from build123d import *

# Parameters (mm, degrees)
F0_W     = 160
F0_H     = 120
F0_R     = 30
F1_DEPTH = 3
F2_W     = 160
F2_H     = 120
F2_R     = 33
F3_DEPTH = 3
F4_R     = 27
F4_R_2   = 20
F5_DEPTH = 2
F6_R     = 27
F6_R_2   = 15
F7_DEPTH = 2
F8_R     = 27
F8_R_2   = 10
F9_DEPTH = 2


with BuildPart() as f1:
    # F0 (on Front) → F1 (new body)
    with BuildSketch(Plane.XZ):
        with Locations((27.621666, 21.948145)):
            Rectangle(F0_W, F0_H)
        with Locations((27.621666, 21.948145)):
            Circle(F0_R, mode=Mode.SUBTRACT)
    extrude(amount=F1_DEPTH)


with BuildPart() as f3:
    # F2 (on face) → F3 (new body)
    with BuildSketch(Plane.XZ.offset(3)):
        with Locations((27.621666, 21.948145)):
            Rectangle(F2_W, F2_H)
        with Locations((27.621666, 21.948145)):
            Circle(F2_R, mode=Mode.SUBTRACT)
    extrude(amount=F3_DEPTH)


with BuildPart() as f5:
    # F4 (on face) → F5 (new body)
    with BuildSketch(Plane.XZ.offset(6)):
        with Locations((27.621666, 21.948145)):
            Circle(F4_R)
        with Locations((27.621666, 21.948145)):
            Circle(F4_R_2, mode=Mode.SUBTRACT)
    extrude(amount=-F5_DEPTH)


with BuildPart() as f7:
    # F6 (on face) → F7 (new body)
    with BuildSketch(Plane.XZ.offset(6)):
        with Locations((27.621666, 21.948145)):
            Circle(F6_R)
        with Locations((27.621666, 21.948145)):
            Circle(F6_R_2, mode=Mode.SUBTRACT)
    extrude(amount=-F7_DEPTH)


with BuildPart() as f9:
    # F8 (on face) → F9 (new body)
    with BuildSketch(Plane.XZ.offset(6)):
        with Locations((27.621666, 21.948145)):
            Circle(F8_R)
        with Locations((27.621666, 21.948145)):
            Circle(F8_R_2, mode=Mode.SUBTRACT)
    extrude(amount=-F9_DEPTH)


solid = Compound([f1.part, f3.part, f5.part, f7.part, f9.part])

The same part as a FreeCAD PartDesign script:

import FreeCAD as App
import Part
import Sketcher
from FreeCAD import Vector

doc = App.newDocument("Part")
body = doc.addObject("PartDesign::Body", "Body")

sketch1 = doc.addObject("Sketcher::SketchObject", "Sketch")
body.addObject(sketch1)
sketch1.AttachmentSupport = (doc.XZ_Plane, [""])
sketch1.MapMode = "FlatFace"
sketch1.addGeometry([
    Part.LineSegment(Vector(-52.378334, 81.948145, 0), Vector(-52.378334, -38.051855, 0)),
    Part.LineSegment(Vector(-52.378334, -38.051855, 0), Vector(107.621666, -38.051855, 0)),
    Part.LineSegment(Vector(107.621666, -38.051855, 0), Vector(107.621666, 81.948145, 0)),
    Part.LineSegment(Vector(107.621666, 81.948145, 0), Vector(-52.378334, 81.948145, 0)),
    Part.Circle(Vector(27.621666, 21.948145, 0), Vector(0, 0, 1), 30),
], False)
sketch1.addConstraint([
    Sketcher.Constraint("Coincident", 0, 2, 1, 1),
    Sketcher.Constraint("Coincident", 1, 2, 2, 1),
    Sketcher.Constraint("Coincident", 2, 2, 3, 1),
    Sketcher.Constraint("Coincident", 3, 2, 0, 1),
    Sketcher.Constraint("Vertical", 0),
    Sketcher.Constraint("Horizontal", 1),
    Sketcher.Constraint("Vertical", 2),
    Sketcher.Constraint("Horizontal", 3),
    Sketcher.Constraint("Diameter", 4, 60.0),
    Sketcher.Constraint("DistanceX", 1, 1, 1, 2, 160.0),
    Sketcher.Constraint("DistanceY", 0, 2, 0, 1, 120.0),
    Sketcher.Constraint("DistanceX", 0, 2, 4, 3, 80.0),
    Sketcher.Constraint("DistanceY", 0, 2, 4, 3, 60.0),
    Sketcher.Constraint("DistanceX", -1, 1, 4, 3, 27.621666),
    Sketcher.Constraint("DistanceY", -1, 1, 4, 3, 21.948145),
])
pad1 = doc.addObject("PartDesign::Pad", "Pad")
body.addObject(pad1)
pad1.Profile = sketch1
pad1.Length = 3
body2 = doc.addObject("PartDesign::Body", "Body001")

sketch2 = doc.addObject("Sketcher::SketchObject", "Sketch001")
body2.addObject(sketch2)
sketch2.AttachmentSupport = (doc.getObject("XZ_Plane001"), [""])
sketch2.MapMode = "FlatFace"
sketch2.AttachmentOffset = App.Placement(Vector(0, 0, 3), App.Rotation())
sketch2.addGeometry([
    Part.LineSegment(Vector(-52.378334, 81.948145, 0), Vector(-52.378334, -38.051855, 0)),
    Part.LineSegment(Vector(-52.378334, -38.051855, 0), Vector(107.621666, -38.051855, 0)),
    Part.LineSegment(Vector(107.621666, -38.051855, 0), Vector(107.621666, 81.948145, 0)),
    Part.LineSegment(Vector(107.621666, 81.948145, 0), Vector(-52.378334, 81.948145, 0)),
    Part.Circle(Vector(27.621666, 21.948145, 0), Vector(0, 0, 1), 33),
], False)
sketch2.addConstraint([
    Sketcher.Constraint("Coincident", 0, 2, 1, 1),
    Sketcher.Constraint("Coincident", 1, 2, 2, 1),
    Sketcher.Constraint("Coincident", 2, 2, 3, 1),
    Sketcher.Constraint("Coincident", 3, 2, 0, 1),
    Sketcher.Constraint("Vertical", 0),
    Sketcher.Constraint("Horizontal", 1),
    Sketcher.Constraint("Vertical", 2),
    Sketcher.Constraint("Horizontal", 3),
    Sketcher.Constraint("Diameter", 4, 66.0),
    Sketcher.Constraint("DistanceX", 1, 1, 1, 2, 160.0),
    Sketcher.Constraint("DistanceY", 0, 2, 0, 1, 120.0),
    Sketcher.Constraint("DistanceX", 0, 2, 4, 3, 80.0),
    Sketcher.Constraint("DistanceY", 0, 2, 4, 3, 60.0),
    Sketcher.Constraint("DistanceX", -1, 1, 4, 3, 27.621666),
    Sketcher.Constraint("DistanceY", -1, 1, 4, 3, 21.948145),
])
pad2 = doc.addObject("PartDesign::Pad", "Pad001")
body2.addObject(pad2)
pad2.Profile = sketch2
pad2.Length = 3
body3 = doc.addObject("PartDesign::Body", "Body002")

sketch3 = doc.addObject("Sketcher::SketchObject", "Sketch002")
body3.addObject(sketch3)
sketch3.AttachmentSupport = (doc.getObject("XZ_Plane002"), [""])
sketch3.MapMode = "FlatFace"
sketch3.AttachmentOffset = App.Placement(Vector(0, 0, 6), App.Rotation())
sketch3.addGeometry([
    Part.Circle(Vector(27.621666, 21.948145, 0), Vector(0, 0, 1), 27),
    Part.Circle(Vector(27.621666, 21.948145, 0), Vector(0, 0, 1), 20),
], False)
sketch3.addConstraint([
    Sketcher.Constraint("Coincident", 1, 3, 0, 3),
    Sketcher.Constraint("Diameter", 0, 54.0),
    Sketcher.Constraint("Diameter", 1, 40.0),
    Sketcher.Constraint("DistanceX", -1, 1, 0, 3, 27.621666),
    Sketcher.Constraint("DistanceY", -1, 1, 0, 3, 21.948145),
])
pad3 = doc.addObject("PartDesign::Pad", "Pad002")
body3.addObject(pad3)
pad3.Profile = sketch3
pad3.Length = 2
pad3.Reversed = True
body4 = doc.addObject("PartDesign::Body", "Body003")

sketch4 = doc.addObject("Sketcher::SketchObject", "Sketch003")
body4.addObject(sketch4)
sketch4.AttachmentSupport = (doc.getObject("XZ_Plane003"), [""])
sketch4.MapMode = "FlatFace"
sketch4.AttachmentOffset = App.Placement(Vector(0, 0, 6), App.Rotation())
sketch4.addGeometry([
    Part.Circle(Vector(27.621666, 21.948145, 0), Vector(0, 0, 1), 27),
    Part.Circle(Vector(27.621666, 21.948145, 0), Vector(0, 0, 1), 15),
], False)
sketch4.addConstraint([
    Sketcher.Constraint("Coincident", 1, 3, 0, 3),
    Sketcher.Constraint("Diameter", 0, 54.0),
    Sketcher.Constraint("Diameter", 1, 30.0),
    Sketcher.Constraint("DistanceX", -1, 1, 0, 3, 27.621666),
    Sketcher.Constraint("DistanceY", -1, 1, 0, 3, 21.948145),
])
pad4 = doc.addObject("PartDesign::Pad", "Pad003")
body4.addObject(pad4)
pad4.Profile = sketch4
pad4.Length = 2
pad4.Reversed = True
body5 = doc.addObject("PartDesign::Body", "Body004")

sketch5 = doc.addObject("Sketcher::SketchObject", "Sketch004")
body5.addObject(sketch5)
sketch5.AttachmentSupport = (doc.getObject("XZ_Plane004"), [""])
sketch5.MapMode = "FlatFace"
sketch5.AttachmentOffset = App.Placement(Vector(0, 0, 6), App.Rotation())
sketch5.addGeometry([
    Part.Circle(Vector(27.621666, 21.948145, 0), Vector(0, 0, 1), 27),
    Part.Circle(Vector(27.621666, 21.948145, 0), Vector(0, 0, 1), 10),
], False)
sketch5.addConstraint([
    Sketcher.Constraint("Coincident", 1, 3, 0, 3),
    Sketcher.Constraint("Diameter", 0, 54.0),
    Sketcher.Constraint("Diameter", 1, 20.0),
    Sketcher.Constraint("DistanceX", -1, 1, 0, 3, 27.621666),
    Sketcher.Constraint("DistanceY", -1, 1, 0, 3, 21.948145),
])
pad5 = doc.addObject("PartDesign::Pad", "Pad004")
body5.addObject(pad5)
pad5.Profile = sketch5
pad5.Length = 2
pad5.Reversed = True

doc.recompute()
